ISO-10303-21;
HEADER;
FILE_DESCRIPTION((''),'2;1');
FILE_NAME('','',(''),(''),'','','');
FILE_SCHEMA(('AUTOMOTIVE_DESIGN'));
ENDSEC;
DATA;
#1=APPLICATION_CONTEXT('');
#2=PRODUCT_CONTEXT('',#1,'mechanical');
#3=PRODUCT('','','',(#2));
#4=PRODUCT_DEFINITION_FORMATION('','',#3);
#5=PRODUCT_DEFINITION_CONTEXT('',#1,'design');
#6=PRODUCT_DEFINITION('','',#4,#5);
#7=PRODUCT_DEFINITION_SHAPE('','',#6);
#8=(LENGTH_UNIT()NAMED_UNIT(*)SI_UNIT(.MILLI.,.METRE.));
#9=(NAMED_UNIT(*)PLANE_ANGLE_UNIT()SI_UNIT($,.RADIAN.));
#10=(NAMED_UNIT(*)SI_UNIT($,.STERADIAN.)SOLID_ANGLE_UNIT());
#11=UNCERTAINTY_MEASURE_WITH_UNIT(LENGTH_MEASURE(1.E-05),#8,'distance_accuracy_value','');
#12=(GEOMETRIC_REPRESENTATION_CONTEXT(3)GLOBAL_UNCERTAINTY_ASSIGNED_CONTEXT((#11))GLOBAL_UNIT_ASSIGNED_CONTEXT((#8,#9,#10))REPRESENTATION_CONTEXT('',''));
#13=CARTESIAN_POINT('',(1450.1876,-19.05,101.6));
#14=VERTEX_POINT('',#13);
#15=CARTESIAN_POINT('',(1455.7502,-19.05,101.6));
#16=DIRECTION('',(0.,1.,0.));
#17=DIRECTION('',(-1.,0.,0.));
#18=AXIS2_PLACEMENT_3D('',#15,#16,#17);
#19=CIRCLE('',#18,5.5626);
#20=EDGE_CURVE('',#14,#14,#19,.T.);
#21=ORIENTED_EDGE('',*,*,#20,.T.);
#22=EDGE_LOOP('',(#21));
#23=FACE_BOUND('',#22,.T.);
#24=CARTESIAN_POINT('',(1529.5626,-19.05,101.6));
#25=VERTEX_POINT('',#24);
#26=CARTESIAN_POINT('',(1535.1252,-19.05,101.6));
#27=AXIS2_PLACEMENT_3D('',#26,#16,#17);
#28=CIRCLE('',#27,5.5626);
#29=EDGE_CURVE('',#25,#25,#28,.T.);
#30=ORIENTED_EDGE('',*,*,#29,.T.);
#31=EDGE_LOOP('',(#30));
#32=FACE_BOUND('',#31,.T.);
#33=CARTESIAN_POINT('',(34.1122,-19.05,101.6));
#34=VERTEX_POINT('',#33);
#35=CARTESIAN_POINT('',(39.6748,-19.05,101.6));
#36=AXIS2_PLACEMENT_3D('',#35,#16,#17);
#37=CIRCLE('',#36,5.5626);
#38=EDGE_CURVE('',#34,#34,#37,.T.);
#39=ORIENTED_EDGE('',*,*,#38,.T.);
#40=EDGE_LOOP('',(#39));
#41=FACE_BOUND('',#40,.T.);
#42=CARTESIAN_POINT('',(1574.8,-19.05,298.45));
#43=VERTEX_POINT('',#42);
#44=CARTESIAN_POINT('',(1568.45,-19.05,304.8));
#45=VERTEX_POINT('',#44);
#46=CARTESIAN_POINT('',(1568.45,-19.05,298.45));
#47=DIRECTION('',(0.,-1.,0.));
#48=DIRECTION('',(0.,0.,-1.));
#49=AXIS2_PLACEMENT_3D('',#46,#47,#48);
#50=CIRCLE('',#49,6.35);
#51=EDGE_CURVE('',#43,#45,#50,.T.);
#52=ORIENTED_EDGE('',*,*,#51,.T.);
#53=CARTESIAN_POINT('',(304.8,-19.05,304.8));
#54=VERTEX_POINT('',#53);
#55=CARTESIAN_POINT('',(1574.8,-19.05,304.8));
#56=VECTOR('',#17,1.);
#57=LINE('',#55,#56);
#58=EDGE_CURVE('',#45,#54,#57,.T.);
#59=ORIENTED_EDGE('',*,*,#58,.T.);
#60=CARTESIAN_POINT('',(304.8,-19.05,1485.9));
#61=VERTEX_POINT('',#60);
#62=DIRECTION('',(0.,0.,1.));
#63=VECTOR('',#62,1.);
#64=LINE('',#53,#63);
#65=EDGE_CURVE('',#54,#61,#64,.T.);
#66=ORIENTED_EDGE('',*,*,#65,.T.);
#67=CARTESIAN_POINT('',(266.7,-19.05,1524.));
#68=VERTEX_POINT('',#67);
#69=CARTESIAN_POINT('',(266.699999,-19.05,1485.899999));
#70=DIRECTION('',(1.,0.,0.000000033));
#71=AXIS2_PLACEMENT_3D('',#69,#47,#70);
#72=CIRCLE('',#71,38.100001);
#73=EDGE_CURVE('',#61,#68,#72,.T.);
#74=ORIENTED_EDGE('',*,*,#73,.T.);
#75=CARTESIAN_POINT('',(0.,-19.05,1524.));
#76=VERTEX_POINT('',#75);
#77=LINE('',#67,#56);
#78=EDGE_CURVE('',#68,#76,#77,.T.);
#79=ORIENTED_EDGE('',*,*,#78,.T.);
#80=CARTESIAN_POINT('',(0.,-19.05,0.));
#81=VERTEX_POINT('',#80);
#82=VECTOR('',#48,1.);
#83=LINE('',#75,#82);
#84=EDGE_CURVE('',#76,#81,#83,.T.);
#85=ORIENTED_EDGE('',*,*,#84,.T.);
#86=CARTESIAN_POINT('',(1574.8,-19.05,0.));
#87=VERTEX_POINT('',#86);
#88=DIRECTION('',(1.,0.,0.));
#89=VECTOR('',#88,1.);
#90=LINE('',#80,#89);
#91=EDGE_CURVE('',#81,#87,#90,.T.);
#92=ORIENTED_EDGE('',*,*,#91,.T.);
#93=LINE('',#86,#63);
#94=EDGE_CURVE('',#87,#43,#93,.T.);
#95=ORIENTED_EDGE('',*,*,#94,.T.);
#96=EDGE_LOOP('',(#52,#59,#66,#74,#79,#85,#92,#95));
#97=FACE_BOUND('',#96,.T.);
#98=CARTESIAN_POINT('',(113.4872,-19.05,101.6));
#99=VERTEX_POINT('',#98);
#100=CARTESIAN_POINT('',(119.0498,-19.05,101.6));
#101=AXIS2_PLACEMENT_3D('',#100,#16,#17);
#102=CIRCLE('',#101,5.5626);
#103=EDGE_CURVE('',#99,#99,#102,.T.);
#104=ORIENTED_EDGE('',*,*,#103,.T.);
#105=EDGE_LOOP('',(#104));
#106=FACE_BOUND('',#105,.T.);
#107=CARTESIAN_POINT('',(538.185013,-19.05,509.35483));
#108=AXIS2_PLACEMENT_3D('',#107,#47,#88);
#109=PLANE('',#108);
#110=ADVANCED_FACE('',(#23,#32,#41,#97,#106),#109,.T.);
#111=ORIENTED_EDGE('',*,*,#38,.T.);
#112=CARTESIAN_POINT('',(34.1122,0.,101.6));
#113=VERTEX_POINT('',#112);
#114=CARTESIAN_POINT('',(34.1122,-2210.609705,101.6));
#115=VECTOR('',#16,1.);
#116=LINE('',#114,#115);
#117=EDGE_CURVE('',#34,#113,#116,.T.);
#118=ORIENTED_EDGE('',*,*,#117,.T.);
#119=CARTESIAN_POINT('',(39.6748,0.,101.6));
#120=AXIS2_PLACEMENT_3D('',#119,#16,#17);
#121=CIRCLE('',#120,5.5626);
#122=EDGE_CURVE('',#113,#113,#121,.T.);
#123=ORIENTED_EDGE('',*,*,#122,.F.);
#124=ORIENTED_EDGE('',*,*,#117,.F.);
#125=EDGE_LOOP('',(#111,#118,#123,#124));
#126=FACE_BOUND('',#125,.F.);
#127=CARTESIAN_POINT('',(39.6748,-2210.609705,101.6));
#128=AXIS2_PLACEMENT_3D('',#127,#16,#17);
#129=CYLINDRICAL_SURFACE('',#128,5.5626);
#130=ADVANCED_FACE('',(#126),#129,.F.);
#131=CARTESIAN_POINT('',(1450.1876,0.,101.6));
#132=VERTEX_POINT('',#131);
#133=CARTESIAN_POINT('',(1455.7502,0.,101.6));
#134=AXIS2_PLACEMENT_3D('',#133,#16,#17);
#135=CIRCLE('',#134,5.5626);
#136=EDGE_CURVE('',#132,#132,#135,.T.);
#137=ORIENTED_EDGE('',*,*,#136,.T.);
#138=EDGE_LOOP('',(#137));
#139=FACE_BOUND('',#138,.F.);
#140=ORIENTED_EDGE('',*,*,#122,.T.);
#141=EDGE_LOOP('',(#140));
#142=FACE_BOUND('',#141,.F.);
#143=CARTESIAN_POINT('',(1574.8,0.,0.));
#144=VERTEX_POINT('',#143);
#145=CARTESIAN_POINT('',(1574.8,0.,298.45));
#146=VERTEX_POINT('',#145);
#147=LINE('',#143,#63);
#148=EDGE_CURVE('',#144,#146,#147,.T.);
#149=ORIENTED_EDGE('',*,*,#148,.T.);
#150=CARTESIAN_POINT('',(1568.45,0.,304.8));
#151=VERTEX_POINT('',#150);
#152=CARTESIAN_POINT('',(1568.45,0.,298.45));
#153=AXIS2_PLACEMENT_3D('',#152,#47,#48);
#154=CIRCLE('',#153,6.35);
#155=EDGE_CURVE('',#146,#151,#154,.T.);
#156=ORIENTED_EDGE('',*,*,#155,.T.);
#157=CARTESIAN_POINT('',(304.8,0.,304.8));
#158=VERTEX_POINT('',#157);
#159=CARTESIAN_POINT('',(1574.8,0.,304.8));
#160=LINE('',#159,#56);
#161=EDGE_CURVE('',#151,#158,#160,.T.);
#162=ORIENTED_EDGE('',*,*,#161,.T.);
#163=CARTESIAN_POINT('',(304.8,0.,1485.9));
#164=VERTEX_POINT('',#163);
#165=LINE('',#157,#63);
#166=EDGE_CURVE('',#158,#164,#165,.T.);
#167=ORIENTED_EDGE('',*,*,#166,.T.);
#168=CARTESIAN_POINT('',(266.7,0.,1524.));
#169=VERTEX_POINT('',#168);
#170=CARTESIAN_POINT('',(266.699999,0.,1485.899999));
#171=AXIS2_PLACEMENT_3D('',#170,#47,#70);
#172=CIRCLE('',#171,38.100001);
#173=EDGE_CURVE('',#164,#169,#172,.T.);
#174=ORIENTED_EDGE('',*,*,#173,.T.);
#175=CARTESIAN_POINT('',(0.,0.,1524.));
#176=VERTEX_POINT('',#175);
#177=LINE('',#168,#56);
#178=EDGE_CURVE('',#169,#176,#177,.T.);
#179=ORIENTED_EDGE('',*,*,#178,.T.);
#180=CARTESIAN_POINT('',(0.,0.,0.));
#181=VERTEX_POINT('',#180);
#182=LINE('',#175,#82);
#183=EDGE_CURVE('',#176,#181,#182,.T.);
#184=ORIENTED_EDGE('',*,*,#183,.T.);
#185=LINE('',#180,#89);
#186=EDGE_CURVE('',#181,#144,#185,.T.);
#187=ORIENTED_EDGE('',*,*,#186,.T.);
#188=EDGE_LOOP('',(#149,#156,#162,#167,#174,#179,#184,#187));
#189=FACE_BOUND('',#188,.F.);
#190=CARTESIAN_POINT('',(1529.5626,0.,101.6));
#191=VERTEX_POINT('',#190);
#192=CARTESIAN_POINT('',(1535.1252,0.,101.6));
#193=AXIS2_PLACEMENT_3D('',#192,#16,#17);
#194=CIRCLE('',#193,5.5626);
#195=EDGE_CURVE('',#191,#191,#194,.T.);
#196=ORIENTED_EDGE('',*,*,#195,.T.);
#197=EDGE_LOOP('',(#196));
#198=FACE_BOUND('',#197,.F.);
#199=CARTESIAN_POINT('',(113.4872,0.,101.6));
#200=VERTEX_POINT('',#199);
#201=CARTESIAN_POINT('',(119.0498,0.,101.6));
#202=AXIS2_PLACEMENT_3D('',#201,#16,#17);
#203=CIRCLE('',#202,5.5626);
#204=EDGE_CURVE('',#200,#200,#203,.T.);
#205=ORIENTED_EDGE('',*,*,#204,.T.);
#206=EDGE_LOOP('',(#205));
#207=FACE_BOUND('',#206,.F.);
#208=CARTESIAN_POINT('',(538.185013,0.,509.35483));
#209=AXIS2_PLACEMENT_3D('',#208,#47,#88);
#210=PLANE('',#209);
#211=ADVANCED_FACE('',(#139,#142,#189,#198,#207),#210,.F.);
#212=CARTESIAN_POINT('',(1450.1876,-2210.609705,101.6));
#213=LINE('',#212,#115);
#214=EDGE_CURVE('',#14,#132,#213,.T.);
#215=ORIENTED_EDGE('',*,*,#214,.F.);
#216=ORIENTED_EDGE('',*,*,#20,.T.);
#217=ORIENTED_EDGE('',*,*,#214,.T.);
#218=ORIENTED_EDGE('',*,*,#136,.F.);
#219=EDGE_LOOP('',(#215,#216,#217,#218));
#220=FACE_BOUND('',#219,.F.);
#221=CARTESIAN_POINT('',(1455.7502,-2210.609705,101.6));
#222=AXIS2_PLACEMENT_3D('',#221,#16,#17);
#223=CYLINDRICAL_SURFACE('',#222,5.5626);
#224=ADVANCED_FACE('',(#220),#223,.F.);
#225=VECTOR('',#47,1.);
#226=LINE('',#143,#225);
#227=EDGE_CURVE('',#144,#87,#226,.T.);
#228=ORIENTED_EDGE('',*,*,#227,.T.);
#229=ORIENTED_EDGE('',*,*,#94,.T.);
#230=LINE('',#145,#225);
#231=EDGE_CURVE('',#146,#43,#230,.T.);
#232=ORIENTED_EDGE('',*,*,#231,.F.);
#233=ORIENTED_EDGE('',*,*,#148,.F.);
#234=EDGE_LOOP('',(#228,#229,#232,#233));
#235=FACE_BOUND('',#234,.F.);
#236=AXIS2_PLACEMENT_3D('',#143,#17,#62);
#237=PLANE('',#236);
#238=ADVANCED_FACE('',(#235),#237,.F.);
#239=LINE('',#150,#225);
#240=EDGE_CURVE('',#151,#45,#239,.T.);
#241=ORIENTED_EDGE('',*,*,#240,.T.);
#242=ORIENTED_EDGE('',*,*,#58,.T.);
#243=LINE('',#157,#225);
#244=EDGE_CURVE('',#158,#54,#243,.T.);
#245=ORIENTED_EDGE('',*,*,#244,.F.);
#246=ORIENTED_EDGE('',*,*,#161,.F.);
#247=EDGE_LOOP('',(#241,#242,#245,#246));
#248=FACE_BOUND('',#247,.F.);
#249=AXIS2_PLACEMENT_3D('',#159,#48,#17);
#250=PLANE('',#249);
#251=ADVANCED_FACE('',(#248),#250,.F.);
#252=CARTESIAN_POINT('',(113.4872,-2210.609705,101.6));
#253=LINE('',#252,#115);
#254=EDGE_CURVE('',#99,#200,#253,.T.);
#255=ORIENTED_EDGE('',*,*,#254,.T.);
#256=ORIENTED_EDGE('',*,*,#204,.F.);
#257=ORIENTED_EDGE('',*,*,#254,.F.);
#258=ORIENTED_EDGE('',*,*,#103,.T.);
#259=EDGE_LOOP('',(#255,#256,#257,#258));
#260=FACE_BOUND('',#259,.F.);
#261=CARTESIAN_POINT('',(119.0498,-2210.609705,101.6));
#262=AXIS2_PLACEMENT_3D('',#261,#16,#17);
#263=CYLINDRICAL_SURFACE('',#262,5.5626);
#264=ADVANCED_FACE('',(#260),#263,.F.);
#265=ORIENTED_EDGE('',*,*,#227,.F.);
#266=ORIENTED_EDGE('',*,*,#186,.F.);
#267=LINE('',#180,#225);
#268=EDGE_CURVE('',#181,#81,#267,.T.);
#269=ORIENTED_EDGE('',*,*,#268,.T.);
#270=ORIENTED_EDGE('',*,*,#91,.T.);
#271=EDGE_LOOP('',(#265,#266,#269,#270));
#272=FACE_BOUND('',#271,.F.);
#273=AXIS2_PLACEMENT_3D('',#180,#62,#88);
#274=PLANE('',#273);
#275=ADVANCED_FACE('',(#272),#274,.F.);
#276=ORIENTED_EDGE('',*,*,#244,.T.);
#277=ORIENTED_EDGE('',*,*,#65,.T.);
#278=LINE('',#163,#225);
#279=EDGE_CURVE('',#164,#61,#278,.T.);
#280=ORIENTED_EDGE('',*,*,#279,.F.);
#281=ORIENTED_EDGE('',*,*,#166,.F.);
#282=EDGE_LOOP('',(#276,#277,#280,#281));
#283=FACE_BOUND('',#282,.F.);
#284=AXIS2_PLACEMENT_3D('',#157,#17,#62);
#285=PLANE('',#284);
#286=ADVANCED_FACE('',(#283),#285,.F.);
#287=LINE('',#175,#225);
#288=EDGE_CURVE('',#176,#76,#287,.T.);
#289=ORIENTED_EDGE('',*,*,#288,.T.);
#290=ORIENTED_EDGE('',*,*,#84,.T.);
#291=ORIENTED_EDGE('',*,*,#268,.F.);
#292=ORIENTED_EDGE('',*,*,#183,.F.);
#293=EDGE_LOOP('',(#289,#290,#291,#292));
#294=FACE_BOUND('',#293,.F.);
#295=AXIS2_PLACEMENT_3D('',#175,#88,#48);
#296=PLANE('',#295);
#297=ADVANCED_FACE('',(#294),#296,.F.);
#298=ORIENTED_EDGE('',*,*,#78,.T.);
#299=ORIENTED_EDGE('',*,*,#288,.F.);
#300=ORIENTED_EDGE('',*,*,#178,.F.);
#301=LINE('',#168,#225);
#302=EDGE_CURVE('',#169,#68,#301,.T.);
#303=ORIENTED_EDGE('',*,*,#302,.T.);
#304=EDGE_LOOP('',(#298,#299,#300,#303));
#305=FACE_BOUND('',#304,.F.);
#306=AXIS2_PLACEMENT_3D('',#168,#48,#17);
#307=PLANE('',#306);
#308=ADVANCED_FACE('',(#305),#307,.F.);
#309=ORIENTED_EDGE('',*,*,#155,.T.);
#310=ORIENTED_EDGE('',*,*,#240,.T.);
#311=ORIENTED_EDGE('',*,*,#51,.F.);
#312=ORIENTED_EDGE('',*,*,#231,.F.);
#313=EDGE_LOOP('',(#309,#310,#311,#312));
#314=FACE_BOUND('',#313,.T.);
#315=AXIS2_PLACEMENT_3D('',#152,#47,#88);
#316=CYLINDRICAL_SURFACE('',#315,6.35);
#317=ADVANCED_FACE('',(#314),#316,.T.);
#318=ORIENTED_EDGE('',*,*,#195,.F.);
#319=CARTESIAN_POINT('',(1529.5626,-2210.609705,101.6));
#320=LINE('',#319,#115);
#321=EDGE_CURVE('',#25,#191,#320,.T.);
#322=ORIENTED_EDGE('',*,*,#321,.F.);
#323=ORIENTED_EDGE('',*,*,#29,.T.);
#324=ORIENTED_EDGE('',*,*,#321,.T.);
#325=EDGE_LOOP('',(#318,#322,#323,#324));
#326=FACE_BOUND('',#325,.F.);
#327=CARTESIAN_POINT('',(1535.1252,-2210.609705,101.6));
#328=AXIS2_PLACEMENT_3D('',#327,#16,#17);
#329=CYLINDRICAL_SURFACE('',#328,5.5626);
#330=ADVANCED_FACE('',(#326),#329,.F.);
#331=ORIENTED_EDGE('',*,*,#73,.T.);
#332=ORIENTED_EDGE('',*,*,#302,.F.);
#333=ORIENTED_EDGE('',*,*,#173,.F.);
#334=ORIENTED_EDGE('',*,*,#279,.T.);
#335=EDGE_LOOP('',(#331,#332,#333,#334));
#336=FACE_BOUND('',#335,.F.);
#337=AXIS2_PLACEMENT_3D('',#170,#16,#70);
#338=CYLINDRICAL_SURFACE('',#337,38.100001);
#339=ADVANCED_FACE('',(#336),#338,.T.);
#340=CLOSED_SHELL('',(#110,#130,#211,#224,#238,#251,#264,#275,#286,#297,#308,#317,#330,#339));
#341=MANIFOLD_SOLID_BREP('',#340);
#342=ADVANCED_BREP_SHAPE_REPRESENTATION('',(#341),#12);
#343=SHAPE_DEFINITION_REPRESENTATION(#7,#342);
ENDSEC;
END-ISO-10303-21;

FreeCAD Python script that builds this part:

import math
import FreeCAD as App
import Part
import Sketcher
from FreeCAD import Vector
Q = App.Units.Quantity


def edges_at(feature, points):
    """Names of the edges that pass closest to the given points."""
    edges = feature.Shape.Edges
    near = lambda p: min(range(len(edges)), key=lambda i: edges[i].distToShape(Part.Vertex(*p))[0])
    return sorted({f"Edge{near(p) + 1}" for p in points})

doc = App.newDocument("Part")
body = doc.addObject("PartDesign::Body", "Body")

sketch1 = body.newObject("Sketcher::SketchObject", "Sketch")
sketch1.AttachmentSupport = (doc.getObject("XZ_Plane"), [""])
sketch1.MapMode = "FlatFace"
sketch1.addGeometry(Part.LineSegment(Vector(305, 305, 0), Vector(305, 1486, 0)), False)
sketch1.addGeometry(Part.ArcOfCircle(Part.Circle(Vector(267, 1486, 0), Vector(0, 0, 1), 38), math.radians(0), math.radians(90)), False)
sketch1.addGeometry(Part.LineSegment(Vector(267, 1524, 0), Vector(0, 1524, 0)), False)
sketch1.addGeometry(Part.LineSegment(Vector(0, 1524, 0), Vector(0, 0, 0)), False)
sketch1.addGeometry(Part.LineSegment(Vector(0, 0, 0), Vector(1575, 0, 0)), False)
sketch1.addGeometry(Part.LineSegment(Vector(1575, 0, 0), Vector(1575, 305, 0)), False)
sketch1.addGeometry(Part.LineSegment(Vector(1575, 305, 0), Vector(305, 305, 0)), False)
sketch1.addConstraint(Sketcher.Constraint("Tangent", 0, 2, 1, 1))
sketch1.addConstraint(Sketcher.Constraint("Tangent", 1, 2, 2, 1))
sketch1.addConstraint(Sketcher.Constraint("Coincident", 2, 2, 3, 1))
sketch1.addConstraint(Sketcher.Constraint("Coincident", 3, 2, 4, 1))
sketch1.addConstraint(Sketcher.Constraint("Coincident", 4, 2, 5, 1))
sketch1.addConstraint(Sketcher.Constraint("Coincident", 5, 2, 6, 1))
sketch1.addConstraint(Sketcher.Constraint("Coincident", 6, 2, 0, 1))
sketch1.addConstraint(Sketcher.Constraint("Vertical", 0))
sketch1.addConstraint(Sketcher.Constraint("Horizontal", 2))
sketch1.addConstraint(Sketcher.Constraint("Vertical", 3))
sketch1.addConstraint(Sketcher.Constraint("Horizontal", 4))
sketch1.addConstraint(Sketcher.Constraint("Vertical", 5))
sketch1.addConstraint(Sketcher.Constraint("Horizontal", 6))
sketch1.addConstraint(Sketcher.Constraint("Coincident", 3, 2, -1, 1))
sketch1.addConstraint(Sketcher.Constraint("Radius", 1, Q("1.5 in")))
sketch1.addConstraint(Sketcher.Constraint("DistanceX", 4, 1, 4, 2, Q("62 in")))
sketch1.addConstraint(Sketcher.Constraint("DistanceX", 6, 2, 6, 1, Q("50 in")))
sketch1.addConstraint(Sketcher.Constraint("DistanceY", 3, 2, 3, 1, Q("60 in")))
sketch1.addConstraint(Sketcher.Constraint("DistanceY", 5, 1, 5, 2, Q("12 in")))
pad1 = body.newObject("PartDesign::Pad", "Pad")
pad1.Profile = sketch1
pad1.Length = Q("0.75 in")
doc.recompute()

fillet = body.newObject("PartDesign::Fillet", "Fillet")
fillet.Base = (pad1, edges_at(pad1, [(1574.8, -9.525, 304.8)]))
fillet.Radius = Q("0.25 in")

sketch2 = body.newObject("Sketcher::SketchObject", "Sketch001")
sketch2.AttachmentSupport = (doc.getObject("XZ_Plane"), [""])
sketch2.MapMode = "FlatFace"
sketch2.AttachmentOffset = App.Placement(Vector(0, 0, 0.75 * 25.4), App.Rotation())
sketch2.addGeometry(Part.Circle(Vector(1535, 102, 0), Vector(0, 0, 1), 6), False)
sketch2.addGeometry(Part.Circle(Vector(1456, 102, 0), Vector(0, 0, 1), 6), False)
sketch2.addGeometry(Part.Circle(Vector(119, 102, 0), Vector(0, 0, 1), 6), False)
sketch2.addGeometry(Part.Circle(Vector(40, 102, 0), Vector(0, 0, 1), 6), False)
sketch2.addConstraint(Sketcher.Constraint("Equal", 0, 1))
sketch2.addConstraint(Sketcher.Constraint("Equal", 1, 2))
sketch2.addConstraint(Sketcher.Constraint("Equal", 2, 3))
sketch2.addConstraint(Sketcher.Constraint("Horizontal", 0, 3, 1, 3))
sketch2.addConstraint(Sketcher.Constraint("Horizontal", 1, 3, 2, 3))
sketch2.addConstraint(Sketcher.Constraint("Horizontal", 2, 3, 3, 3))
sketch2.addConstraint(Sketcher.Constraint("Diameter", 0, Q("0.438 in")))
sketch2.addConstraint(Sketcher.Constraint("DistanceY", -1, 1, 0, 3, Q("4 in")))
sketch2.addConstraint(Sketcher.Constraint("DistanceX", -1, 1, 0, 3, Q("60.438 in")))
sketch2.addConstraint(Sketcher.Constraint("DistanceX", -1, 1, 1, 3, Q("57.313 in")))
sketch2.addConstraint(Sketcher.Constraint("DistanceX", -1, 1, 2, 3, Q("4.687 in")))
sketch2.addConstraint(Sketcher.Constraint("DistanceX", -1, 1, 3, 3, Q("1.562 in")))
doc.recompute()
hole = body.newObject("PartDesign::Hole", "Hole")
hole.Profile = sketch2
hole.ThreadType = "None"
hole.Diameter = Q("0.438 in")
hole.DepthType = "ThroughAll"

doc.recompute()
